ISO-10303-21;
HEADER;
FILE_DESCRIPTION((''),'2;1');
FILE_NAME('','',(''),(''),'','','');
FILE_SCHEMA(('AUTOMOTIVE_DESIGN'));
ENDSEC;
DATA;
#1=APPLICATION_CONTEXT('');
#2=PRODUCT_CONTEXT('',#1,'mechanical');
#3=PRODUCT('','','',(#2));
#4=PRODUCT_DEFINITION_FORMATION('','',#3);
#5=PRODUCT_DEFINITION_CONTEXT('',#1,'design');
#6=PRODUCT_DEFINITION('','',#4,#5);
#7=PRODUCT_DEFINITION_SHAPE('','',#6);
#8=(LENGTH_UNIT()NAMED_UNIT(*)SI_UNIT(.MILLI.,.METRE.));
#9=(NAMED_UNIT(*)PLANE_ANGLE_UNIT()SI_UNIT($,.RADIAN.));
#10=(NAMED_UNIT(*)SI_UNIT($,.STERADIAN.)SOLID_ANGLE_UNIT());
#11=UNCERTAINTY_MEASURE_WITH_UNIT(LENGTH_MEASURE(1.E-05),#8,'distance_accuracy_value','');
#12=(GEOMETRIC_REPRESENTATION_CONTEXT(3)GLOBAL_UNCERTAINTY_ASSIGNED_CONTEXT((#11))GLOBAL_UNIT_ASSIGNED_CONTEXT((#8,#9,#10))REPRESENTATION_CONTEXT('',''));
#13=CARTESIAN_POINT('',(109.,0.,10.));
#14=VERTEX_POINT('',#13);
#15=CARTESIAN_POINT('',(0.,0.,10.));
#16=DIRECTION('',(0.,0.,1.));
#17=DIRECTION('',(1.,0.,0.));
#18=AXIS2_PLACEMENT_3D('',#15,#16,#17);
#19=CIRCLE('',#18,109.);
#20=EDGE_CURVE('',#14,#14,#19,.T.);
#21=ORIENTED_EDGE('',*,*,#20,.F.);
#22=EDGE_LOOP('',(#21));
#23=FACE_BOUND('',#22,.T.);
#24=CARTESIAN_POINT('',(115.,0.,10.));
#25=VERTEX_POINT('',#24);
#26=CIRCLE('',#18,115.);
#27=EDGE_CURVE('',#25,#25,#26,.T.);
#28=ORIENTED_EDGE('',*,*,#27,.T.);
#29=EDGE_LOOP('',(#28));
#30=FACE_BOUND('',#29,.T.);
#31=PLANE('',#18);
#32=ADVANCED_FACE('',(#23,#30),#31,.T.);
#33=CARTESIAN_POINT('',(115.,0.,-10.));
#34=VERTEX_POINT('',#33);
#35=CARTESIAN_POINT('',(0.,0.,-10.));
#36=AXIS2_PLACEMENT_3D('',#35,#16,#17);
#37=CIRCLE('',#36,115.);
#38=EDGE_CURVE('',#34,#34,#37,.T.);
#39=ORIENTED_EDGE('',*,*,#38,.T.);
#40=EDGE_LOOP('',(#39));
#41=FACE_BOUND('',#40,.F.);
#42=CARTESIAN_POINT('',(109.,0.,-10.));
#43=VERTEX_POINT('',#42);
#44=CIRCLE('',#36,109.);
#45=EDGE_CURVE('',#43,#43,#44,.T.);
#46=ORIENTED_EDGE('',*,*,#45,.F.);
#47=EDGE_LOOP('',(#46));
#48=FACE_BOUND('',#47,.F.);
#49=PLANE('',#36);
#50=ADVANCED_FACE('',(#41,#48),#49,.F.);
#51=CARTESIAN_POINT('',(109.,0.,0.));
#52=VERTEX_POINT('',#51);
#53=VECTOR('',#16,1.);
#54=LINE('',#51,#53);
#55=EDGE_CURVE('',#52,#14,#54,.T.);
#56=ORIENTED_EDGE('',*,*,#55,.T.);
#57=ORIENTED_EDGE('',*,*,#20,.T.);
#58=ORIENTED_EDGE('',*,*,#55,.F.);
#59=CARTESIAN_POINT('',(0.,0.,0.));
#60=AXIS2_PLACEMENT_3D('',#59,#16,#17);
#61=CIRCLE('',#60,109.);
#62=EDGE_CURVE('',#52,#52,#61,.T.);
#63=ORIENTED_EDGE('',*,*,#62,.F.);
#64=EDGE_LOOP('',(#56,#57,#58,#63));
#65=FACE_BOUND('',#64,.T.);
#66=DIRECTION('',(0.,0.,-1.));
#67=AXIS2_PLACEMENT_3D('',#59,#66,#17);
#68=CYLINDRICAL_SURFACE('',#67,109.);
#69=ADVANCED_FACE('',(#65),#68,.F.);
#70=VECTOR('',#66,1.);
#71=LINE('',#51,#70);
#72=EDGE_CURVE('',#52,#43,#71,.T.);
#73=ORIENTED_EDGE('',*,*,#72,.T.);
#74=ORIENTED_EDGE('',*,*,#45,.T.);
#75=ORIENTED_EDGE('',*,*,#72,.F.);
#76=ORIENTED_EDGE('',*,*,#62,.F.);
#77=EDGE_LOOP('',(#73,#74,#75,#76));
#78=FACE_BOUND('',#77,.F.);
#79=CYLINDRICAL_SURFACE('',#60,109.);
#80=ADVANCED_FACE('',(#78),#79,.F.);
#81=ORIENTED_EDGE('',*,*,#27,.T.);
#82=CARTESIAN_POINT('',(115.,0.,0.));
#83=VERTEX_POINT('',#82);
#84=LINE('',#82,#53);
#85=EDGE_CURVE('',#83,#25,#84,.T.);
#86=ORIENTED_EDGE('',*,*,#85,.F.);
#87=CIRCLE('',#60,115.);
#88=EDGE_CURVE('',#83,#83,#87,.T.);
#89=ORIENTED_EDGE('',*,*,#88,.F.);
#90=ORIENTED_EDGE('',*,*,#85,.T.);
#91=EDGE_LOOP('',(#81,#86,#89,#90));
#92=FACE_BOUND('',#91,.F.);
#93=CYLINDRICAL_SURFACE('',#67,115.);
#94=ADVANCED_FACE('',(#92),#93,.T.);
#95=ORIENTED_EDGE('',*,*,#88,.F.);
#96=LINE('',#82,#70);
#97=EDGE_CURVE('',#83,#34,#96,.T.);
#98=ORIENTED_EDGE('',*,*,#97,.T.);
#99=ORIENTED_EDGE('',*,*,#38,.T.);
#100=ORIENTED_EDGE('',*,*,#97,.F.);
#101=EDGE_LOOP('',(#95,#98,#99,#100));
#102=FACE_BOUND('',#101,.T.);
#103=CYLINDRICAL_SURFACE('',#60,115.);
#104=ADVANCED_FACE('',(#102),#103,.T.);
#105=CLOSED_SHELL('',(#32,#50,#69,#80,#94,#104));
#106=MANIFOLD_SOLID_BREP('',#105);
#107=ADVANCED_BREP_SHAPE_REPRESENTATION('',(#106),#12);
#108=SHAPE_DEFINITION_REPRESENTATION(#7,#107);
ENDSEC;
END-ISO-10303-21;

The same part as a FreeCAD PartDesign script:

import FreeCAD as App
import Part
import Sketcher

V = App.Vector

doc = App.newDocument("Part")
body = doc.addObject("PartDesign::Body", "Body")

# Sketch on XY plane
sketch1 = doc.addObject("Sketcher::SketchObject", "Sketch")
body.addObject(sketch1)
sketch1.AttachmentSupport = (doc.XY_Plane, [""])
sketch1.MapMode = "FlatFace"
sketch1.addGeometry([
    Part.Circle(V(0, 0, 0), V(0, 0, 1), 115),
    Part.Circle(V(0, 0, 0), V(0, 0, 1), 109),
], False)
sketch1.addConstraint([
    Sketcher.Constraint("Coincident", 0, 3, -1, 1),
    Sketcher.Constraint("Coincident", 1, 3, -1, 1),
    Sketcher.Constraint("Diameter", 0, 230.0),
    Sketcher.Constraint("Diameter", 1, 218.0),
])
pad1 = doc.addObject("PartDesign::Pad", "Pad")
body.addObject(pad1)
pad1.Profile = sketch1
pad1.Length = 20
pad1.Midplane = True

doc.recompute()
